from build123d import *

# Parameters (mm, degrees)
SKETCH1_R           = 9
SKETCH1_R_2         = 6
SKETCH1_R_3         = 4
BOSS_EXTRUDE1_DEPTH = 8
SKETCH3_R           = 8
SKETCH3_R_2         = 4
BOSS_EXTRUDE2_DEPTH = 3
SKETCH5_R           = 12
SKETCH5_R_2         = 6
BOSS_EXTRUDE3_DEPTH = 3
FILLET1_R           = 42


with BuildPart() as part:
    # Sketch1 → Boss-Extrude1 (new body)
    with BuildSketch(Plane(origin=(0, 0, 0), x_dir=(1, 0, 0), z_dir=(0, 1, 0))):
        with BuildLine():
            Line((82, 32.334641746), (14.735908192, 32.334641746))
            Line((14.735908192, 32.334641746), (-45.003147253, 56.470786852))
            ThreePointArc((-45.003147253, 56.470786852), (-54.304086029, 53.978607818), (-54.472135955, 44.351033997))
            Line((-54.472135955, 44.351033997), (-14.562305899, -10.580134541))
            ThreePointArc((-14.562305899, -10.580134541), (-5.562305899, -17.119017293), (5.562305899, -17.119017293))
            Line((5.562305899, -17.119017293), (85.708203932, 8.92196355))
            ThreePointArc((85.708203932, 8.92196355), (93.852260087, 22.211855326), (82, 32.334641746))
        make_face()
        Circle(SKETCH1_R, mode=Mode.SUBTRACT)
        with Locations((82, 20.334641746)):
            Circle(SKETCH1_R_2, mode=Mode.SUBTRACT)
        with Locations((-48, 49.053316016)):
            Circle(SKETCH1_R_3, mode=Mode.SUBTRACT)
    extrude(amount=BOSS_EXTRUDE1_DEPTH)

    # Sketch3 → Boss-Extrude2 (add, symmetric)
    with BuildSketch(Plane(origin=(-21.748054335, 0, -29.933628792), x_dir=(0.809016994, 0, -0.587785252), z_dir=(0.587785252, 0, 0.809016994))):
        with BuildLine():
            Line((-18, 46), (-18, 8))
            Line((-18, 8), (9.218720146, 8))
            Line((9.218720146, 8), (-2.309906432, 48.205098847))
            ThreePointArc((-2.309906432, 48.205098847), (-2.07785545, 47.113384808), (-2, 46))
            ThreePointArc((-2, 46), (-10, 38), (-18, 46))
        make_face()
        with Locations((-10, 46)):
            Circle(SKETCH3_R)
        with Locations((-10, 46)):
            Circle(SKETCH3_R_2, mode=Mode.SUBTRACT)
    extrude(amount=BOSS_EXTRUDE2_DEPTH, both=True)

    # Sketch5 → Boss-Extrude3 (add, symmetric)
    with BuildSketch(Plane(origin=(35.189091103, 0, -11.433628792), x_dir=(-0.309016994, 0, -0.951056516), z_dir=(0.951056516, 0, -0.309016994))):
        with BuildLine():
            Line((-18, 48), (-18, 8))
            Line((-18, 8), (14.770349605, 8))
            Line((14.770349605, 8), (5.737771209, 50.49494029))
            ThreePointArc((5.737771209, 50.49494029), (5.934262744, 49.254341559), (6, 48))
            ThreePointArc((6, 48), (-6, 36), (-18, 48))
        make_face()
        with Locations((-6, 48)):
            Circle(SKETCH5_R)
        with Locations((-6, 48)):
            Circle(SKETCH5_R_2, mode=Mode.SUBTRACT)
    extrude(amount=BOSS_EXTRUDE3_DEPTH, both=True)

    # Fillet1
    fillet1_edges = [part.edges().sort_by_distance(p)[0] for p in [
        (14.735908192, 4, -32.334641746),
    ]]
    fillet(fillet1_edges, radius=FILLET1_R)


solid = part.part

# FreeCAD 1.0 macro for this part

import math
import FreeCAD as App
import Part
import Sketcher
Q = App.Units.Quantity


def edges_at(feature, points):
    """Names of the edges that pass closest to the given points."""
    edges = feature.Shape.Edges
    near = lambda p: min(range(len(edges)), key=lambda i: edges[i].distToShape(Part.Vertex(*p))[0])
    return sorted({f"Edge{near(p) + 1}" for p in points})

doc = App.newDocument("Part")
body = doc.addObject("PartDesign::Body", "Body")

sketch1 = body.newObject("Sketcher::SketchObject", "Sketch")
sketch1.AttachmentSupport = (doc.getObject("XZ_Plane"), [""])
sketch1.MapMode = "FlatFace"
sketch1.addGeometry(Part.LineSegment(App.Vector(82, -32.3, 0), App.Vector(14.7, -32.3, 0)), False)
sketch1.addGeometry(Part.LineSegment(App.Vector(14.7, -32.3, 0), App.Vector(-45, -56.5, 0)), False)
sketch1.addGeometry(Part.ArcOfCircle(Part.Circle(App.Vector(-48, -49.1, 0), App.Vector(0, 0, 1), 8), math.radians(144), math.radians(292)), False)
sketch1.addGeometry(Part.LineSegment(App.Vector(-54.5, -44.4, 0), App.Vector(-14.6, 10.6, 0)), False)
sketch1.addGeometry(Part.ArcOfCircle(Part.Circle(App.Vector(0, 0, 0), App.Vector(0, 0, 1), 18), math.radians(72), math.radians(144)), False)
sketch1.addGeometry(Part.LineSegment(App.Vector(5.6, 17.1, 0), App.Vector(85.7, -8.9, 0)), False)
sketch1.addGeometry(Part.ArcOfCircle(Part.Circle(App.Vector(82, -20.3, 0), App.Vector(0, 0, 1), 12), math.radians(-90), math.radians(72)), False)
sketch1.addGeometry(Part.Circle(App.Vector(0, 0, 0), App.Vector(0, 0, 1), 9), False)
sketch1.addGeometry(Part.Circle(App.Vector(82, -20.3, 0), App.Vector(0, 0, 1), 6), False)
sketch1.addGeometry(Part.Circle(App.Vector(-48, -49.1, 0), App.Vector(0, 0, 1), 4), False)
sketch1.addConstraint(Sketcher.Constraint("Coincident", 0, 2, 1, 1))
sketch1.addConstraint(Sketcher.Constraint("Tangent", 1, 2, 2, 2))
sketch1.addConstraint(Sketcher.Constraint("Tangent", 2, 1, 3, 1))
sketch1.addConstraint(Sketcher.Constraint("Tangent", 3, 2, 4, 2))
sketch1.addConstraint(Sketcher.Constraint("Tangent", 4, 1, 5, 1))
sketch1.addConstraint(Sketcher.Constraint("Tangent", 5, 2, 6, 2))
sketch1.addConstraint(Sketcher.Constraint("Tangent", 6, 1, 0, 1))
sketch1.addConstraint(Sketcher.Constraint("Horizontal", 0))
sketch1.addConstraint(Sketcher.Constraint("Coincident", 4, 3, -1, 1))
sketch1.addConstraint(Sketcher.Constraint("Coincident", 7, 3, -1, 1))
sketch1.addConstraint(Sketcher.Constraint("Coincident", 8, 3, 6, 3))
sketch1.addConstraint(Sketcher.Constraint("Coincident", 9, 3, 2, 3))
sketch1.addConstraint(Sketcher.Constraint("Diameter", 7, Q("18 mm")))
sketch1.addConstraint(Sketcher.Constraint("Diameter", 8, Q("12 mm")))
sketch1.addConstraint(Sketcher.Constraint("Diameter", 9, Q("8 mm")))
sketch1.addConstraint(Sketcher.Constraint("Radius", 2, Q("8 mm")))
sketch1.addConstraint(Sketcher.Constraint("Radius", 4, Q("18 mm")))
sketch1.addConstraint(Sketcher.Constraint("Radius", 6, Q("12 mm")))
sketch1.addConstraint(Sketcher.Constraint("Angle", 1, Q("-158 deg")))
sketch1.addConstraint(Sketcher.Constraint("Angle", 3, Q("54 deg")))
sketch1.addConstraint(Sketcher.Constraint("Angle", 5, Q("-18 deg")))
sketch1.addConstraint(Sketcher.Constraint("DistanceX", 2, 3, -1, 1, Q("48 mm")))
sketch1.addConstraint(Sketcher.Constraint("DistanceX", -1, 1, 6, 3, Q("82 mm")))
pad1 = body.newObject("PartDesign::Pad", "Pad")
pad1.Profile = sketch1
pad1.Length = 8
pad1.Reversed = True

sketch2 = body.newObject("Sketcher::SketchObject", "Sketch001")
sketch2.Placement = App.Placement(App.Vector(-21.748054, 0, -29.933629), App.Rotation(App.Vector(0.809016994, 0, -0.587785252), App.Vector(0, 0.999999999, 0), App.Vector(0.587785252, 0, 0.809016994), "ZXY"))
sketch2.addGeometry(Part.LineSegment(App.Vector(-18, 46, 0), App.Vector(-18, 8, 0)), False)
sketch2.addGeometry(Part.LineSegment(App.Vector(-18, 8, 0), App.Vector(9.2, 8, 0)), False)
sketch2.addGeometry(Part.LineSegment(App.Vector(9.2, 8, 0), App.Vector(-2.3, 48.2, 0)), False)
sketch2.addGeometry(Part.ArcOfCircle(Part.Circle(App.Vector(-10, 46, 0), App.Vector(0, 0, 1), 8), math.radians(16), math.radians(180)), False)
sketch2.addGeometry(Part.Circle(App.Vector(-10, 46, 0), App.Vector(0, 0, 1), 4), False)
sketch2.addConstraint(Sketcher.Constraint("Coincident", 0, 2, 1, 1))
sketch2.addConstraint(Sketcher.Constraint("Coincident", 1, 2, 2, 1))
sketch2.addConstraint(Sketcher.Constraint("Tangent", 2, 2, 3, 1))
sketch2.addConstraint(Sketcher.Constraint("Tangent", 3, 2, 0, 1))
sketch2.addConstraint(Sketcher.Constraint("Vertical", 0))
sketch2.addConstraint(Sketcher.Constraint("Horizontal", 1))
sketch2.addConstraint(Sketcher.Constraint("Coincident", 4, 3, 3, 3))
sketch2.addConstraint(Sketcher.Constraint("Diameter", 4, Q("8 mm")))
sketch2.addConstraint(Sketcher.Constraint("Radius", 3, Q("8 mm")))
sketch2.addConstraint(Sketcher.Constraint("DistanceY", 0, 2, 0, 1, Q("38 mm")))
sketch2.addConstraint(Sketcher.Constraint("Angle", 2, Q("106 deg")))
sketch2.addConstraint(Sketcher.Constraint("DistanceX", 3, 3, -1, 1, Q("10 mm")))
sketch2.addConstraint(Sketcher.Constraint("DistanceY", -1, 1, 3, 3, Q("46 mm")))
pad2 = body.newObject("PartDesign::Pad", "Pad001")
pad2.Profile = sketch2
pad2.Length = 6
pad2.Midplane = True

sketch3 = body.newObject("Sketcher::SketchObject", "Sketch002")
sketch3.Placement = App.Placement(App.Vector(35.189091, 0, -11.433629), App.Rotation(App.Vector(-0.309016994, 0, -0.951056516), App.Vector(0, 0.999999999, 0), App.Vector(0.951056516, 0, -0.309016994), "ZXY"))
sketch3.addGeometry(Part.LineSegment(App.Vector(-18, 48, 0), App.Vector(-18, 8, 0)), False)
sketch3.addGeometry(Part.LineSegment(App.Vector(-18, 8, 0), App.Vector(15, 8, 0)), False)
sketch3.addGeometry(Part.LineSegment(App.Vector(15, 8, 0), App.Vector(6, 50, 0)), False)
sketch3.addGeometry(Part.ArcOfCircle(Part.Circle(App.Vector(-6, 48, 0), App.Vector(0, 0, 1), 12), math.radians(12), math.radians(180)), False)
sketch3.addGeometry(Part.Circle(App.Vector(-6, 48, 0), App.Vector(0, 0, 1), 6), False)
sketch3.addConstraint(Sketcher.Constraint("Coincident", 0, 2, 1, 1))
sketch3.addConstraint(Sketcher.Constraint("Coincident", 1, 2, 2, 1))
sketch3.addConstraint(Sketcher.Constraint("Tangent", 2, 2, 3, 1))
sketch3.addConstraint(Sketcher.Constraint("Tangent", 3, 2, 0, 1))
sketch3.addConstraint(Sketcher.Constraint("Vertical", 0))
sketch3.addConstraint(Sketcher.Constraint("Horizontal", 1))
sketch3.addConstraint(Sketcher.Constraint("Coincident", 4, 3, 3, 3))
sketch3.addConstraint(Sketcher.Constraint("Diameter", 4, Q("12 mm")))
sketch3.addConstraint(Sketcher.Constraint("Radius", 3, Q("12 mm")))
sketch3.addConstraint(Sketcher.Constraint("DistanceY", 0, 2, 0, 1, Q("40 mm")))
sketch3.addConstraint(Sketcher.Constraint("Angle", 2, Q("102 deg")))
sketch3.addConstraint(Sketcher.Constraint("DistanceX", 3, 3, -1, 1, Q("6 mm")))
sketch3.addConstraint(Sketcher.Constraint("DistanceY", -1, 1, 3, 3, Q("48 mm")))
pad3 = body.newObject("PartDesign::Pad", "Pad002")
pad3.Profile = sketch3
pad3.Length = 6
pad3.Midplane = True
doc.recompute()

fillet = body.newObject("PartDesign::Fillet", "Fillet")
fillet.Base = (pad3, edges_at(pad3, [(14.736, 4, -32.335)]))
fillet.Radius = 42

doc.recompute()
